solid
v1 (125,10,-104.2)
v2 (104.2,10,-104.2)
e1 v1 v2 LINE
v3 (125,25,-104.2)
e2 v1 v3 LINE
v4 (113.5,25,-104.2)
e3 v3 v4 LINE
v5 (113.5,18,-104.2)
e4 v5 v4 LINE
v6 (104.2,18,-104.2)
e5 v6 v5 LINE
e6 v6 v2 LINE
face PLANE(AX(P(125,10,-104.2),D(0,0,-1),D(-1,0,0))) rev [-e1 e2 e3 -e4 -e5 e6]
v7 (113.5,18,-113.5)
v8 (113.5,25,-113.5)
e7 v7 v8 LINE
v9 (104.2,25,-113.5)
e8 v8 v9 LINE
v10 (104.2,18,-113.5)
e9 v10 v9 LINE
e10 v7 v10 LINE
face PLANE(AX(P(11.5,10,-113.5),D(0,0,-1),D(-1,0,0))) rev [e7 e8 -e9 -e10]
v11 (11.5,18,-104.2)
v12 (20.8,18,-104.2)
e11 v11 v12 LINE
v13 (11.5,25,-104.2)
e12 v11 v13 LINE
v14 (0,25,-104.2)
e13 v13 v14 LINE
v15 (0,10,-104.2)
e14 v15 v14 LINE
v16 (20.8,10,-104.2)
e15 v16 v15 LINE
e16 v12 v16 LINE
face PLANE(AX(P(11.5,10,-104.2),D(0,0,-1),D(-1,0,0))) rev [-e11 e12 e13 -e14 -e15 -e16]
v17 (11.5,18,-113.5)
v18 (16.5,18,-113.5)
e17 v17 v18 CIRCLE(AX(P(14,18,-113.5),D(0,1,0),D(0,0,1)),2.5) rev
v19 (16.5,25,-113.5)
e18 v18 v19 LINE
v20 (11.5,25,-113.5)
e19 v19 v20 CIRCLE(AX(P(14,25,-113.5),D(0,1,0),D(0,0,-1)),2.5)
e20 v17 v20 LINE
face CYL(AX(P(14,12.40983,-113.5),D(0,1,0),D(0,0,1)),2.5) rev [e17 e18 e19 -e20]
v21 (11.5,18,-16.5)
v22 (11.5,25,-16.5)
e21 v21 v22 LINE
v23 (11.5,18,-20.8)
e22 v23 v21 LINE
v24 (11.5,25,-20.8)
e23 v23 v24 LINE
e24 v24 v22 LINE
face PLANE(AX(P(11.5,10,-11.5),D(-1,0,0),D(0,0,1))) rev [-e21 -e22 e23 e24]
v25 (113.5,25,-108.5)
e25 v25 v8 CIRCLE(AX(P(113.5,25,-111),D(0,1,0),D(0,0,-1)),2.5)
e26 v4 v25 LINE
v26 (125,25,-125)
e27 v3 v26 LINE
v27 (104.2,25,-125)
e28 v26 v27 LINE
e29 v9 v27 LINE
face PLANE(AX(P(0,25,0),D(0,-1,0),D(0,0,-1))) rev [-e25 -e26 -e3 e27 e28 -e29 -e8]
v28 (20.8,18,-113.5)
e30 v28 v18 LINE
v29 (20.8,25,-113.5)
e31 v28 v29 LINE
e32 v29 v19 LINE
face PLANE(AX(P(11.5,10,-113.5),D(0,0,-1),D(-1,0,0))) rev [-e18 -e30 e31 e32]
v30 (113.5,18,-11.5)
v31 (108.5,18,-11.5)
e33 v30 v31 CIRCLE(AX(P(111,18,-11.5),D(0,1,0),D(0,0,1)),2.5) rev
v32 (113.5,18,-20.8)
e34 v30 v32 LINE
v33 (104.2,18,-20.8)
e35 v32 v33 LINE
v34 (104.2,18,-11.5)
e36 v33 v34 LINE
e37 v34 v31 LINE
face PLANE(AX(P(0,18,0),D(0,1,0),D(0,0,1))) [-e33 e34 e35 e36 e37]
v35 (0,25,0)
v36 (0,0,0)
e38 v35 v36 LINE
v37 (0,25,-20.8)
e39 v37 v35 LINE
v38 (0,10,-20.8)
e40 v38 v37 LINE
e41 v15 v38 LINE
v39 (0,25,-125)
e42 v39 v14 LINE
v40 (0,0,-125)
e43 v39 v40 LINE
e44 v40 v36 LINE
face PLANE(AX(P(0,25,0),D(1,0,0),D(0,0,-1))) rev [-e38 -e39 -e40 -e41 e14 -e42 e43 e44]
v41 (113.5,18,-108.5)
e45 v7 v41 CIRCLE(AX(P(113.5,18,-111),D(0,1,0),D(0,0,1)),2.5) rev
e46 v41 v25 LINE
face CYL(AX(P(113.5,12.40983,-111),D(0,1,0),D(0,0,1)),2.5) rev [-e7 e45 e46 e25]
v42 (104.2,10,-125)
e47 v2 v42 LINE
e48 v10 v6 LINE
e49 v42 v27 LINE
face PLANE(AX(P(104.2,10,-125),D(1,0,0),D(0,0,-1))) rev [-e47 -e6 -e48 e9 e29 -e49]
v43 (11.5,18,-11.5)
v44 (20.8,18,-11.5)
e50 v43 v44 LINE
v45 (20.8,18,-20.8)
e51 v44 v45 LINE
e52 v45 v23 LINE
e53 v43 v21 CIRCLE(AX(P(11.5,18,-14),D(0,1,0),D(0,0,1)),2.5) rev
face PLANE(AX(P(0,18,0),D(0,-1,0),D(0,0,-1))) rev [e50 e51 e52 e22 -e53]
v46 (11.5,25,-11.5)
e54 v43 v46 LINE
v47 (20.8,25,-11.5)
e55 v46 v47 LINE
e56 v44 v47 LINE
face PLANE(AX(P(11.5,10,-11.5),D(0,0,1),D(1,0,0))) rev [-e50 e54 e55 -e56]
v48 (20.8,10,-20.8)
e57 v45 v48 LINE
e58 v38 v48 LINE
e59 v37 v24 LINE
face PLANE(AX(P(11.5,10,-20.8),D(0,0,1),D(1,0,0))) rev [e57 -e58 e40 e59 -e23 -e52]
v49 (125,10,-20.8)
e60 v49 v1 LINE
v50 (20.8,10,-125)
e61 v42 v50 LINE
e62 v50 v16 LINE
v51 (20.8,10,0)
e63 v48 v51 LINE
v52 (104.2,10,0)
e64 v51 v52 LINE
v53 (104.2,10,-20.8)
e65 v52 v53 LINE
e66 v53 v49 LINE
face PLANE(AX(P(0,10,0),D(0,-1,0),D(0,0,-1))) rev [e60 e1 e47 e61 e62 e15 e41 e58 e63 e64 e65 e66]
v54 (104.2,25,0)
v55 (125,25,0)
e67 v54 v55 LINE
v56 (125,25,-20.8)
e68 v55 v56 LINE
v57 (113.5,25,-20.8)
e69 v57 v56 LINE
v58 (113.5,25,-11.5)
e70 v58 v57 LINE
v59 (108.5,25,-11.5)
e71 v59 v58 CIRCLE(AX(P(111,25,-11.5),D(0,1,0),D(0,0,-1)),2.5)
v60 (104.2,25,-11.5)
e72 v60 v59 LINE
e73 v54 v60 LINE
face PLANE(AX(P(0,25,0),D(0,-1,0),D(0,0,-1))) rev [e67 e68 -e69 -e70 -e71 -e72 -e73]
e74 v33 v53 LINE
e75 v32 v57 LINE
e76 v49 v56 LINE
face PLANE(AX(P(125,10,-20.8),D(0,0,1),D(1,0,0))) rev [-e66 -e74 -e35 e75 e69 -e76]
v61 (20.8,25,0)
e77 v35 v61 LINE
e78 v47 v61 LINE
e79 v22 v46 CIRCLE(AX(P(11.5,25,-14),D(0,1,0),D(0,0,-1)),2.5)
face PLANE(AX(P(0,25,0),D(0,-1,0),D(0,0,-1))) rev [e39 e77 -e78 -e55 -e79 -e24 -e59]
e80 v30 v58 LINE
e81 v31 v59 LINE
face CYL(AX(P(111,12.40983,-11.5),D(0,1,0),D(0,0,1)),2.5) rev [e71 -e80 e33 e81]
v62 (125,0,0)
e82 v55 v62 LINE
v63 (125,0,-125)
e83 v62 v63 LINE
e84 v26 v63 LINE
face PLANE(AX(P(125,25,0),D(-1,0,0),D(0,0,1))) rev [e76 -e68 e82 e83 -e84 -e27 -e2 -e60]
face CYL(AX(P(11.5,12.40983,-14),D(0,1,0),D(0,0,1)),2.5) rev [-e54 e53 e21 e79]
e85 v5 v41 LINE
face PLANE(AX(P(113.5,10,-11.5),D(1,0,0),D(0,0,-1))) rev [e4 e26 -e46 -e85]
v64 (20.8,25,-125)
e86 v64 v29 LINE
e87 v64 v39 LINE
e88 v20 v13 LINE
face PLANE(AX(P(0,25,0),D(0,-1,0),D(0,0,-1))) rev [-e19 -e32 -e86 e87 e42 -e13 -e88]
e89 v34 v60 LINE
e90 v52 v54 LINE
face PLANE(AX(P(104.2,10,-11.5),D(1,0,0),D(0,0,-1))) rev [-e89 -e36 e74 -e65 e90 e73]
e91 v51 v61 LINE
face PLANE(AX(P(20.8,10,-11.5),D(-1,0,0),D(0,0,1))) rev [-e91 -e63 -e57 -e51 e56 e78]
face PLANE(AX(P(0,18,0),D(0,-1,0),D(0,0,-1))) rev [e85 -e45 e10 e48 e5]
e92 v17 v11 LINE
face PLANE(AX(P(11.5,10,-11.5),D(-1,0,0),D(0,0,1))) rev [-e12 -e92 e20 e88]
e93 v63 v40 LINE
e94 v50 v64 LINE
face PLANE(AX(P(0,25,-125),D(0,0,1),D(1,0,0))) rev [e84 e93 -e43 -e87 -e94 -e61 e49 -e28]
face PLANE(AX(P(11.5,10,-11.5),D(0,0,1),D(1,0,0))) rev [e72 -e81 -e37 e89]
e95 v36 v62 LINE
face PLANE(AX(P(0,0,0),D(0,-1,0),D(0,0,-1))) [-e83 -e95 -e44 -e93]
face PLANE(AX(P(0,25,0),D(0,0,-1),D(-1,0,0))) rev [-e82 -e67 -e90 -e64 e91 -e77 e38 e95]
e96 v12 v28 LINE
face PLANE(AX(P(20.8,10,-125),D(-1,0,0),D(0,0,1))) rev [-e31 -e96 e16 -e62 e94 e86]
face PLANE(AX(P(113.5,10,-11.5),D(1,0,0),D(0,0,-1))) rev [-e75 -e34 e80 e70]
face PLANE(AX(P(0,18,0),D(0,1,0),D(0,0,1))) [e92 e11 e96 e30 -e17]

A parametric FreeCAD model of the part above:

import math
import FreeCAD as App
import Part
import Sketcher

doc = App.newDocument("Part")
body = doc.addObject("PartDesign::Body", "Body")

sketch1 = doc.addObject("Sketcher::SketchObject", "Sketch")
body.addObject(sketch1)
sketch1.AttachmentSupport = (doc.XZ_Plane, [""])
sketch1.MapMode = "FlatFace"
sketch1.addGeometry(Part.LineSegment(App.Vector(0, -125, 0), App.Vector(0, 0, 0)), False)
sketch1.addGeometry(Part.LineSegment(App.Vector(0, 0, 0), App.Vector(125, 0, 0)), False)
sketch1.addGeometry(Part.LineSegment(App.Vector(125, 0, 0), App.Vector(125, -125, 0)), False)
sketch1.addGeometry(Part.LineSegment(App.Vector(125, -125, 0), App.Vector(0, -125, 0)), False)
sketch1.addConstraint(Sketcher.Constraint("Coincident", 0, 2, 1, 1))
sketch1.addConstraint(Sketcher.Constraint("Coincident", 1, 2, 2, 1))
sketch1.addConstraint(Sketcher.Constraint("Coincident", 2, 2, 3, 1))
sketch1.addConstraint(Sketcher.Constraint("Coincident", 3, 2, 0, 1))
sketch1.addConstraint(Sketcher.Constraint("Vertical", 0))
sketch1.addConstraint(Sketcher.Constraint("Horizontal", 1))
sketch1.addConstraint(Sketcher.Constraint("Vertical", 2))
sketch1.addConstraint(Sketcher.Constraint("Horizontal", 3))
sketch1.addConstraint(Sketcher.Constraint("Coincident", 0, 2, -1, 1))
sketch1.addConstraint(Sketcher.Constraint("Equal", 3, 0))
sketch1.addConstraint(Sketcher.Constraint("DistanceX", 1, 1, 1, 2, 125.0))
pad1 = doc.addObject("PartDesign::Pad", "Pad")
body.addObject(pad1)
pad1.Profile = sketch1
pad1.Length = 25
pad1.Reversed = True

sketch2 = doc.addObject("Sketcher::SketchObject", "Sketch001")
body.addObject(sketch2)
sketch2.AttachmentSupport = (doc.XZ_Plane, [""])
sketch2.MapMode = "FlatFace"
sketch2.AttachmentOffset = App.Placement(App.Vector(0, 0, -25), App.Rotation())
sketch2.addGeometry(Part.LineSegment(App.Vector(11.5, -113.5, 0), App.Vector(11.5, -11.5, 0)), False)
sketch2.addGeometry(Part.LineSegment(App.Vector(11.5, -11.5, 0), App.Vector(113.5, -11.5, 0)), False)
sketch2.addGeometry(Part.LineSegment(App.Vector(113.5, -11.5, 0), App.Vector(113.5, -113.5, 0)), False)
sketch2.addGeometry(Part.LineSegment(App.Vector(113.5, -113.5, 0), App.Vector(11.5, -113.5, 0)), False)
sketch2.addConstraint(Sketcher.Constraint("Coincident", 0, 2, 1, 1))
sketch2.addConstraint(Sketcher.Constraint("Coincident", 1, 2, 2, 1))
sketch2.addConstraint(Sketcher.Constraint("Coincident", 2, 2, 3, 1))
sketch2.addConstraint(Sketcher.Constraint("Coincident", 3, 2, 0, 1))
sketch2.addConstraint(Sketcher.Constraint("Vertical", 0))
sketch2.addConstraint(Sketcher.Constraint("Horizontal", 1))
sketch2.addConstraint(Sketcher.Constraint("Vertical", 2))
sketch2.addConstraint(Sketcher.Constraint("Horizontal", 3))
sketch2.addConstraint(Sketcher.Constraint("Equal", 3, 0))
sketch2.addConstraint(Sketcher.Constraint("DistanceX", 1, 1, 1, 2, 102.0))
sketch2.addConstraint(Sketcher.Constraint("DistanceX", -1, 1, 0, 2, 11.5))
sketch2.addConstraint(Sketcher.Constraint("DistanceY", 0, 2, -1, 1, 11.5))
pocket1 = doc.addObject("PartDesign::Pocket", "Pocket")
body.addObject(pocket1)
pocket1.Profile = sketch2
pocket1.Length = 15
pocket1.Reversed = True

sketch3 = doc.addObject("Sketcher::SketchObject", "Sketch002")
body.addObject(sketch3)
sketch3.AttachmentSupport = (doc.XZ_Plane, [""])
sketch3.MapMode = "FlatFace"
sketch3.AttachmentOffset = App.Placement(App.Vector(0, 0, -25), App.Rotation())
sketch3.addGeometry(Part.LineSegment(App.Vector(20.8, -125, 0), App.Vector(20.8, -113.5, 0)), False)
sketch3.addGeometry(Part.LineSegment(App.Vector(20.8, -113.5, 0), App.Vector(104.2, -113.5, 0)), False)
sketch3.addGeometry(Part.LineSegment(App.Vector(104.2, -113.5, 0), App.Vector(104.2, -125, 0)), False)
sketch3.addGeometry(Part.LineSegment(App.Vector(104.2, -125, 0), App.Vector(20.8, -125, 0)), False)
sketch3.addGeometry(Part.LineSegment(App.Vector(0, -104.2, 0), App.Vector(0, -20.8, 0)), False)
sketch3.addGeometry(Part.LineSegment(App.Vector(0, -20.8, 0), App.Vector(11.5, -20.8, 0)), False)
sketch3.addGeometry(Part.LineSegment(App.Vector(11.5, -20.8, 0), App.Vector(11.5, -104.2, 0)), False)
sketch3.addGeometry(Part.LineSegment(App.Vector(11.5, -104.2, 0), App.Vector(0, -104.2, 0)), False)
sketch3.addGeometry(Part.LineSegment(App.Vector(20.8, -11.5, 0), App.Vector(20.8, 0, 0)), False)
sketch3.addGeometry(Part.LineSegment(App.Vector(20.8, 0, 0), App.Vector(104.2, 0, 0)), False)
sketch3.addGeometry(Part.LineSegment(App.Vector(104.2, 0, 0), App.Vector(104.2, -11.5, 0)), False)
sketch3.addGeometry(Part.LineSegment(App.Vector(104.2, -11.5, 0), App.Vector(20.8, -11.5, 0)), False)
sketch3.addGeometry(Part.LineSegment(App.Vector(113.5, -104.2, 0), App.Vector(113.5, -20.8, 0)), False)
sketch3.addGeometry(Part.LineSegment(App.Vector(113.5, -20.8, 0), App.Vector(125, -20.8, 0)), False)
sketch3.addGeometry(Part.LineSegment(App.Vector(125, -20.8, 0), App.Vector(125, -104.2, 0)), False)
sketch3.addGeometry(Part.LineSegment(App.Vector(125, -104.2, 0), App.Vector(113.5, -104.2, 0)), False)
sketch3.addConstraint(Sketcher.Constraint("Coincident", 0, 2, 1, 1))
sketch3.addConstraint(Sketcher.Constraint("Coincident", 1, 2, 2, 1))
sketch3.addConstraint(Sketcher.Constraint("Coincident", 2, 2, 3, 1))
sketch3.addConstraint(Sketcher.Constraint("Coincident", 3, 2, 0, 1))
sketch3.addConstraint(Sketcher.Constraint("Coincident", 4, 2, 5, 1))
sketch3.addConstraint(Sketcher.Constraint("Coincident", 5, 2, 6, 1))
sketch3.addConstraint(Sketcher.Constraint("Coincident", 6, 2, 7, 1))
sketch3.addConstraint(Sketcher.Constraint("Coincident", 7, 2, 4, 1))
sketch3.addConstraint(Sketcher.Constraint("Coincident", 8, 2, 9, 1))
sketch3.addConstraint(Sketcher.Constraint("Coincident", 9, 2, 10, 1))
sketch3.addConstraint(Sketcher.Constraint("Coincident", 10, 2, 11, 1))
sketch3.addConstraint(Sketcher.Constraint("Coincident", 11, 2, 8, 1))
sketch3.addConstraint(Sketcher.Constraint("Coincident", 12, 2, 13, 1))
sketch3.addConstraint(Sketcher.Constraint("Coincident", 13, 2, 14, 1))
sketch3.addConstraint(Sketcher.Constraint("Coincident", 14, 2, 15, 1))
sketch3.addConstraint(Sketcher.Constraint("Coincident", 15, 2, 12, 1))
sketch3.addConstraint(Sketcher.Constraint("Vertical", 0))
sketch3.addConstraint(Sketcher.Constraint("Horizontal", 1))
sketch3.addConstraint(Sketcher.Constraint("Vertical", 2))
sketch3.addConstraint(Sketcher.Constraint("Horizontal", 3))
sketch3.addConstraint(Sketcher.Constraint("Vertical", 4))
sketch3.addConstraint(Sketcher.Constraint("Horizontal", 5))
sketch3.addConstraint(Sketcher.Constraint("Vertical", 6))
sketch3.addConstraint(Sketcher.Constraint("Horizontal", 7))
sketch3.addConstraint(Sketcher.Constraint("Vertical", 8))
sketch3.addConstraint(Sketcher.Constraint("Horizontal", 9))
sketch3.addConstraint(Sketcher.Constraint("Vertical", 10))
sketch3.addConstraint(Sketcher.Constraint("Horizontal", 11))
sketch3.addConstraint(Sketcher.Constraint("Vertical", 12))
sketch3.addConstraint(Sketcher.Constraint("Horizontal", 13))
sketch3.addConstraint(Sketcher.Constraint("Vertical", 14))
sketch3.addConstraint(Sketcher.Constraint("Horizontal", 15))
sketch3.addConstraint(Sketcher.Constraint("PointOnObject", 4, 2, -2))
sketch3.addConstraint(Sketcher.Constraint("PointOnObject", 8, 2, -1))
sketch3.addConstraint(Sketcher.Constraint("Horizontal", 5, 2, 12, 2))
sketch3.addConstraint(Sketcher.Constraint("Horizontal", 7, 2, 14, 2))
sketch3.addConstraint(Sketcher.Constraint("Vertical", 3, 2, 8, 2))
sketch3.addConstraint(Sketcher.Constraint("Vertical", 2, 2, 9, 2))
sketch3.addConstraint(Sketcher.Constraint("Equal", 7, 13))
sketch3.addConstraint(Sketcher.Constraint("Equal", 15, 0))
sketch3.addConstraint(Sketcher.Constraint("Equal", 11, 4))
sketch3.addConstraint(Sketcher.Constraint("Equal", 2, 8))
sketch3.addConstraint(Sketcher.Constraint("DistanceX", 1, 1, 1, 2, 83.4))
sketch3.addConstraint(Sketcher.Constraint("DistanceX", 5, 1, 5, 2, 11.5))
sketch3.addConstraint(Sketcher.Constraint("DistanceY", 2, 2, -1, 1, 125.0))
sketch3.addConstraint(Sketcher.Constraint("DistanceX", -1, 1, 13, 2, 125.0))
sketch3.addConstraint(Sketcher.Constraint("DistanceX", -1, 1, 0, 2, 20.8))
sketch3.addConstraint(Sketcher.Constraint("DistanceY", 4, 2, -1, 1, 20.8))
pocket2 = doc.addObject("PartDesign::Pocket", "Pocket001")
body.addObject(pocket2)
pocket2.Profile = sketch3
pocket2.Length = 15
pocket2.Reversed = True

sketch4 = doc.addObject("Sketcher::SketchObject", "Sketch003")
body.addObject(sketch4)
sketch4.AttachmentSupport = (doc.XZ_Plane, [""])
sketch4.MapMode = "FlatFace"
sketch4.AttachmentOffset = App.Placement(App.Vector(0, 0, -10), App.Rotation())
sketch4.addGeometry(Part.LineSegment(App.Vector(104.2, -20.8, 0), App.Vector(104.2, -11.5, 0)), False)
sketch4.addGeometry(Part.LineSegment(App.Vector(104.2, -11.5, 0), App.Vector(113.5, -11.5, 0)), False)
sketch4.addGeometry(Part.LineSegment(App.Vector(113.5, -11.5, 0), App.Vector(113.5, -20.8, 0)), False)
sketch4.addGeometry(Part.LineSegment(App.Vector(113.5, -20.8, 0), App.Vector(104.2, -20.8, 0)), False)
sketch4.addGeometry(Part.LineSegment(App.Vector(11.5, -20.8, 0), App.Vector(11.5, -11.5, 0)), False)
sketch4.addGeometry(Part.LineSegment(App.Vector(11.5, -11.5, 0), App.Vector(20.8, -11.5, 0)), False)
sketch4.addGeometry(Part.LineSegment(App.Vector(20.8, -11.5, 0), App.Vector(20.8, -20.8, 0)), False)
sketch4.addGeometry(Part.LineSegment(App.Vector(20.8, -20.8, 0), App.Vector(11.5, -20.8, 0)), False)
sketch4.addGeometry(Part.LineSegment(App.Vector(11.5, -113.5, 0), App.Vector(11.5, -104.2, 0)), False)
sketch4.addGeometry(Part.LineSegment(App.Vector(11.5, -104.2, 0), App.Vector(20.8, -104.2, 0)), False)
sketch4.addGeometry(Part.LineSegment(App.Vector(20.8, -104.2, 0), App.Vector(20.8, -113.5, 0)), False)
sketch4.addGeometry(Part.LineSegment(App.Vector(20.8, -113.5, 0), App.Vector(11.5, -113.5, 0)), False)
sketch4.addGeometry(Part.LineSegment(App.Vector(104.2, -113.5, 0), App.Vector(104.2, -104.2, 0)), False)
sketch4.addGeometry(Part.LineSegment(App.Vector(104.2, -104.2, 0), App.Vector(113.5, -104.2, 0)), False)
sketch4.addGeometry(Part.LineSegment(App.Vector(113.5, -104.2, 0), App.Vector(113.5, -113.5, 0)), False)
sketch4.addGeometry(Part.LineSegment(App.Vector(113.5, -113.5, 0), App.Vector(104.2, -113.5, 0)), False)
sketch4.addConstraint(Sketcher.Constraint("Coincident", 0, 2, 1, 1))
sketch4.addConstraint(Sketcher.Constraint("Coincident", 1, 2, 2, 1))
sketch4.addConstraint(Sketcher.Constraint("Coincident", 2, 2, 3, 1))
sketch4.addConstraint(Sketcher.Constraint("Coincident", 3, 2, 0, 1))
sketch4.addConstraint(Sketcher.Constraint("Coincident", 4, 2, 5, 1))
sketch4.addConstraint(Sketcher.Constraint("Coincident", 5, 2, 6, 1))
sketch4.addConstraint(Sketcher.Constraint("Coincident", 6, 2, 7, 1))
sketch4.addConstraint(Sketcher.Constraint("Coincident", 7, 2, 4, 1))
sketch4.addConstraint(Sketcher.Constraint("Coincident", 8, 2, 9, 1))
sketch4.addConstraint(Sketcher.Constraint("Coincident", 9, 2, 10, 1))
sketch4.addConstraint(Sketcher.Constraint("Coincident", 10, 2, 11, 1))
sketch4.addConstraint(Sketcher.Constraint("Coincident", 11, 2, 8, 1))
sketch4.addConstraint(Sketcher.Constraint("Coincident", 12, 2, 13, 1))
sketch4.addConstraint(Sketcher.Constraint("Coincident", 13, 2, 14, 1))
sketch4.addConstraint(Sketcher.Constraint("Coincident", 14, 2, 15, 1))
sketch4.addConstraint(Sketcher.Constraint("Coincident", 15, 2, 12, 1))
sketch4.addConstraint(Sketcher.Constraint("Vertical", 0))
sketch4.addConstraint(Sketcher.Constraint("Horizontal", 1))
sketch4.addConstraint(Sketcher.Constraint("Vertical", 2))
sketch4.addConstraint(Sketcher.Constraint("Horizontal", 3))
sketch4.addConstraint(Sketcher.Constraint("Vertical", 4))
sketch4.addConstraint(Sketcher.Constraint("Horizontal", 5))
sketch4.addConstraint(Sketcher.Constraint("Vertical", 6))
sketch4.addConstraint(Sketcher.Constraint("Horizontal", 7))
sketch4.addConstraint(Sketcher.Constraint("Vertical", 8))
sketch4.addConstraint(Sketcher.Constraint("Horizontal", 9))
sketch4.addConstraint(Sketcher.Constraint("Vertical", 10))
sketch4.addConstraint(Sketcher.Constraint("Horizontal", 11))
sketch4.addConstraint(Sketcher.Constraint("Vertical", 12))
sketch4.addConstraint(Sketcher.Constraint("Horizontal", 13))
sketch4.addConstraint(Sketcher.Constraint("Vertical", 14))
sketch4.addConstraint(Sketcher.Constraint("Horizontal", 15))
sketch4.addConstraint(Sketcher.Constraint("Horizontal", 1, 2, 4, 2))
sketch4.addConstraint(Sketcher.Constraint("Horizontal", 3, 2, 6, 2))
sketch4.addConstraint(Sketcher.Constraint("Horizontal", 9, 2, 12, 2))
sketch4.addConstraint(Sketcher.Constraint("Horizontal", 11, 2, 14, 2))
sketch4.addConstraint(Sketcher.Constraint("Vertical", 7, 2, 8, 2))
sketch4.addConstraint(Sketcher.Constraint("Vertical", 6, 2, 9, 2))
sketch4.addConstraint(Sketcher.Constraint("Vertical", 3, 2, 12, 2))
sketch4.addConstraint(Sketcher.Constraint("Vertical", 2, 2, 13, 2))
sketch4.addConstraint(Sketcher.Constraint("Equal", 3, 5))
sketch4.addConstraint(Sketcher.Constraint("Equal", 15, 0))
sketch4.addConstraint(Sketcher.Constraint("Equal", 6, 8))
sketch4.addConstraint(Sketcher.Constraint("DistanceX", 1, 1, 1, 2, 9.3))
sketch4.addConstraint(Sketcher.Constraint("DistanceX", 4, 2, 1, 2, 102.0))
sketch4.addConstraint(Sketcher.Constraint("DistanceY", 10, 2, 5, 2, 102.0))
sketch4.addConstraint(Sketcher.Constraint("DistanceX", -1, 1, 0, 2, 104.2))
sketch4.addConstraint(Sketcher.Constraint("DistanceY", 0, 2, -1, 1, 11.5))
pad2 = doc.addObject("PartDesign::Pad", "Pad001")
body.addObject(pad2)
pad2.Profile = sketch4
pad2.Length = 8
pad2.Reversed = True

sketch5 = doc.addObject("Sketcher::SketchObject", "Sketch004")
body.addObject(sketch5)
sketch5.AttachmentSupport = (doc.XZ_Plane, [""])
sketch5.MapMode = "FlatFace"
sketch5.AttachmentOffset = App.Placement(App.Vector(0, 0, -25), App.Rotation())
sketch5.addGeometry(Part.LineSegment(App.Vector(11.5, -11.5, 0), App.Vector(11.5, -16.5, 0)), False)
sketch5.addGeometry(Part.ArcOfCircle(Part.Circle(App.Vector(11.5, -14, 0), App.Vector(0, 0, 1), 2.5), math.radians(90), math.radians(270)), False)
sketch5.addGeometry(Part.LineSegment(App.Vector(113.5, -11.5, 0), App.Vector(108.5, -11.5, 0)), False)
sketch5.addGeometry(Part.ArcOfCircle(Part.Circle(App.Vector(111, -11.5, 0), App.Vector(0, 0, 1), 2.5), math.radians(0), math.radians(180)), False)
sketch5.addGeometry(Part.LineSegment(App.Vector(113.5, -113.5, 0), App.Vector(113.5, -108.5, 0)), False)
sketch5.addGeometry(Part.ArcOfCircle(Part.Circle(App.Vector(113.5, -111, 0), App.Vector(0, 0, 1), 2.5), math.radians(-90), math.radians(90)), False)
sketch5.addGeometry(Part.LineSegment(App.Vector(11.5, -113.5, 0), App.Vector(16.5, -113.5, 0)), False)
sketch5.addGeometry(Part.ArcOfCircle(Part.Circle(App.Vector(14, -113.5, 0), App.Vector(0, 0, 1), 2.5), math.radians(180), math.radians(360)), False)
sketch5.addConstraint(Sketcher.Constraint("Coincident", 0, 1, 1, 1))
sketch5.addConstraint(Sketcher.Constraint("Coincident", 1, 2, 0, 2))
sketch5.addConstraint(Sketcher.Constraint("Coincident", 2, 1, 3, 1))
sketch5.addConstraint(Sketcher.Constraint("Coincident", 3, 2, 2, 2))
sketch5.addConstraint(Sketcher.Constraint("Coincident", 4, 1, 5, 1))
sketch5.addConstraint(Sketcher.Constraint("Coincident", 5, 2, 4, 2))
sketch5.addConstraint(Sketcher.Constraint("Coincident", 6, 1, 7, 1))
sketch5.addConstraint(Sketcher.Constraint("Coincident", 7, 2, 6, 2))
sketch5.addConstraint(Sketcher.Constraint("Vertical", 0))
sketch5.addConstraint(Sketcher.Constraint("Horizontal", 2))
sketch5.addConstraint(Sketcher.Constraint("Vertical", 4))
sketch5.addConstraint(Sketcher.Constraint("Horizontal", 6))
sketch5.addConstraint(Sketcher.Constraint("Equal", 1, 3))
sketch5.addConstraint(Sketcher.Constraint("Equal", 3, 5))
sketch5.addConstraint(Sketcher.Constraint("Equal", 5, 7))
sketch5.addConstraint(Sketcher.Constraint("Horizontal", 3, 3, 0, 1))
sketch5.addConstraint(Sketcher.Constraint("Horizontal", 0, 1, 2, 1))
sketch5.addConstraint(Sketcher.Constraint("Horizontal", 7, 3, 4, 1))
sketch5.addConstraint(Sketcher.Constraint("Horizontal", 4, 1, 6, 1))
sketch5.addConstraint(Sketcher.Constraint("Vertical", 1, 3, 0, 1))
sketch5.addConstraint(Sketcher.Constraint("Vertical", 5, 3, 2, 1))
sketch5.addConstraint(Sketcher.Constraint("Vertical", 2, 1, 4, 1))
sketch5.addConstraint(Sketcher.Constraint("Vertical", 1, 2, 6, 1))
sketch5.addConstraint(Sketcher.Constraint("Radius", 1, 2.5))
sketch5.addConstraint(Sketcher.Constraint("DistanceY", 1, 3, -1, 1, 14.0))
sketch5.addConstraint(Sketcher.Constraint("DistanceX", -1, 1, 3, 3, 111.0))
sketch5.addConstraint(Sketcher.Constraint("DistanceY", 5, 3, -1, 1, 111.0))
sketch5.addConstraint(Sketcher.Constraint("DistanceX", -1, 1, 7, 3, 14.0))
pocket3 = doc.addObject("PartDesign::Pocket", "Pocket002")
body.addObject(pocket3)
pocket3.Profile = sketch5
pocket3.Length = 7
pocket3.Reversed = True

doc.recompute()
